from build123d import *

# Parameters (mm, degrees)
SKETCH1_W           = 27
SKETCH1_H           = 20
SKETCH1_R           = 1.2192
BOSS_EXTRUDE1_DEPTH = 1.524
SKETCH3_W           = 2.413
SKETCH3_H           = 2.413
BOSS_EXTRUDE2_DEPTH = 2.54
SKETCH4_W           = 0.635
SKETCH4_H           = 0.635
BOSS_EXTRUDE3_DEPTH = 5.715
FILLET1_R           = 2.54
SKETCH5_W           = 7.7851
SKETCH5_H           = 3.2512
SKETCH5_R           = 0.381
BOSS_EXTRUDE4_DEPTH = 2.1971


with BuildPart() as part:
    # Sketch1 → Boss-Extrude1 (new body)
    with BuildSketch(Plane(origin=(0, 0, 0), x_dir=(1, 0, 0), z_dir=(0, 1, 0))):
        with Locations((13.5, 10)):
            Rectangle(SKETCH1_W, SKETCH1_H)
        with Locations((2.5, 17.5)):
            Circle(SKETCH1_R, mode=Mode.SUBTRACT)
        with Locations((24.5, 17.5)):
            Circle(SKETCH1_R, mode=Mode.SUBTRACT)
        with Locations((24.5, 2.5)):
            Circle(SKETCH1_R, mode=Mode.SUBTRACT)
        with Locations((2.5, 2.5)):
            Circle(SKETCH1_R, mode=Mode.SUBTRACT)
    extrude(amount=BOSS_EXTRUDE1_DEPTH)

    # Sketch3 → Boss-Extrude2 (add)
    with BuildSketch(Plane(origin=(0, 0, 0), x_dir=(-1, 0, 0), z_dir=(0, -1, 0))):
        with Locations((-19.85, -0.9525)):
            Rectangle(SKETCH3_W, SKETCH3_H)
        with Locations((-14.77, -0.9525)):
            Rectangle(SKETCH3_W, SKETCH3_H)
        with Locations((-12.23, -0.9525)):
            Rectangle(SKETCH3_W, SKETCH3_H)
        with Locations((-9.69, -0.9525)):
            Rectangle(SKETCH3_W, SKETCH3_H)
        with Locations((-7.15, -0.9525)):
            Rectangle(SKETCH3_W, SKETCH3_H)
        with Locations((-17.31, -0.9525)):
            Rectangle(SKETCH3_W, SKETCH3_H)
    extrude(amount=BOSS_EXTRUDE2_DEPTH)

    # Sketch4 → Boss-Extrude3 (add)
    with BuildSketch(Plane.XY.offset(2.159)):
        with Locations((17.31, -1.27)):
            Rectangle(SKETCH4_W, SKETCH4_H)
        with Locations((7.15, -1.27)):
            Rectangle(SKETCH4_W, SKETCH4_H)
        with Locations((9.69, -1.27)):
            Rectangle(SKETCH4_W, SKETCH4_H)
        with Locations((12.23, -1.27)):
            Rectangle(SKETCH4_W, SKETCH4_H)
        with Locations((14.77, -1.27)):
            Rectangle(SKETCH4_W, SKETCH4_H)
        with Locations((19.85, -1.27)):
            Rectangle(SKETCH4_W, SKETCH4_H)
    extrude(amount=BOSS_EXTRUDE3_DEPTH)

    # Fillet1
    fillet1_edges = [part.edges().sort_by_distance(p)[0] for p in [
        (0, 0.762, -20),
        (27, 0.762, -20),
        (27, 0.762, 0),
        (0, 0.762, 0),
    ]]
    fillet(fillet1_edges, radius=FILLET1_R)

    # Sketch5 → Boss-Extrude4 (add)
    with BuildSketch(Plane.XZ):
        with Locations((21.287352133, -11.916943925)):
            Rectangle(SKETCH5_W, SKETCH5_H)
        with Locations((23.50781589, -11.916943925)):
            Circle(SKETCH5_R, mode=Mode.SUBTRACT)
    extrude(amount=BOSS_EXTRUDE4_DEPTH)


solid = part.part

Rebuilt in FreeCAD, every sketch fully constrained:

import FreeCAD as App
import Part
import Sketcher

V = App.Vector
Q = App.Units.Quantity


def edges_at(feature, points):
    """Names of the edges that pass closest to the given points."""
    edges = feature.Shape.Edges
    near = lambda p: min(range(len(edges)), key=lambda i: edges[i].distToShape(Part.Vertex(*p))[0])
    return sorted({f"Edge{near(p) + 1}" for p in points})

doc = App.newDocument("Part")
body = doc.addObject("PartDesign::Body", "Body")

# Sketch on XZ plane
sketch1 = body.newObject("Sketcher::SketchObject", "Sketch")
sketch1.AttachmentSupport = (doc.getObject("XZ_Plane"), [""])
sketch1.MapMode = "FlatFace"
sketch1.addGeometry([
    Part.LineSegment(V(0, -20, 0), V(0, 0, 0)),  # 0
    Part.LineSegment(V(0, 0, 0), V(27, 0, 0)),  # 1
    Part.LineSegment(V(27, 0, 0), V(27, -20, 0)),  # 2
    Part.LineSegment(V(27, -20, 0), V(0, -20, 0)),  # 3
    Part.Circle(V(2.5, -2.5, 0), V(0, 0, 1), 1.2192),  # 4
    Part.Circle(V(24.5, -2.5, 0), V(0, 0, 1), 1.2192),  # 5
    Part.Circle(V(2.5, -17.5, 0), V(0, 0, 1), 1.2192),  # 6
    Part.Circle(V(24.5, -17.5, 0), V(0, 0, 1), 1.2192),  # 7
], False)
sketch1.addConstraint([
    Sketcher.Constraint("Coincident", 0, 2, 1, 1),
    Sketcher.Constraint("Coincident", 1, 2, 2, 1),
    Sketcher.Constraint("Coincident", 2, 2, 3, 1),
    Sketcher.Constraint("Coincident", 3, 2, 0, 1),
    Sketcher.Constraint("Vertical", 0),
    Sketcher.Constraint("Horizontal", 1),
    Sketcher.Constraint("Vertical", 2),
    Sketcher.Constraint("Horizontal", 3),
    Sketcher.Constraint("Coincident", 0, 2, -1, 1),
    Sketcher.Constraint("Equal", 4, 5),
    Sketcher.Constraint("Equal", 5, 6),
    Sketcher.Constraint("Equal", 6, 7),
    Sketcher.Constraint("Horizontal", 4, 3, 5, 3),
    Sketcher.Constraint("Horizontal", 6, 3, 7, 3),
    Sketcher.Constraint("Vertical", 4, 3, 6, 3),
    Sketcher.Constraint("Vertical", 5, 3, 7, 3),
    Sketcher.Constraint("Diameter", 4, Q("0.096 in")),
    Sketcher.Constraint("DistanceX", 1, 1, 1, 2, 27.0),
    Sketcher.Constraint("DistanceY", 0, 1, 0, 2, 20.0),
    Sketcher.Constraint("DistanceX", -1, 1, 4, 3, 2.5),
    Sketcher.Constraint("DistanceY", 4, 3, -1, 1, 2.5),
    Sketcher.Constraint("DistanceX", -1, 1, 5, 3, 24.5),
    Sketcher.Constraint("DistanceY", 6, 3, -1, 1, 17.5),
])
pad1 = body.newObject("PartDesign::Pad", "Pad")
pad1.Profile = sketch1
pad1.Length = Q("0.06 in")
pad1.Reversed = True

# Sketch on XZ plane
sketch2 = body.newObject("Sketcher::SketchObject", "Sketch001")
sketch2.AttachmentSupport = (doc.getObject("XZ_Plane"), [""])
sketch2.MapMode = "FlatFace"
sketch2.addGeometry([
    Part.LineSegment(V(21.0565, -0.254, 0), V(21.0565, 2.159, 0)),  # 0
    Part.LineSegment(V(21.0565, 2.159, 0), V(18.6435, 2.159, 0)),  # 1
    Part.LineSegment(V(18.6435, 2.159, 0), V(18.6435, -0.254, 0)),  # 2
    Part.LineSegment(V(18.6435, -0.254, 0), V(21.0565, -0.254, 0)),  # 3
    Part.LineSegment(V(15.9765, -0.254, 0), V(15.9765, 2.159, 0)),  # 4
    Part.LineSegment(V(15.9765, 2.159, 0), V(13.5635, 2.159, 0)),  # 5
    Part.LineSegment(V(13.5635, 2.159, 0), V(13.5635, -0.254, 0)),  # 6
    Part.LineSegment(V(13.5635, -0.254, 0), V(15.9765, -0.254, 0)),  # 7
    Part.LineSegment(V(13.4365, -0.254, 0), V(13.4365, 2.159, 0)),  # 8
    Part.LineSegment(V(13.4365, 2.159, 0), V(11.0235, 2.159, 0)),  # 9
    Part.LineSegment(V(11.0235, 2.159, 0), V(11.0235, -0.254, 0)),  # 10
    Part.LineSegment(V(11.0235, -0.254, 0), V(13.4365, -0.254, 0)),  # 11
    Part.LineSegment(V(10.8965, -0.254, 0), V(10.8965, 2.159, 0)),  # 12
    Part.LineSegment(V(10.8965, 2.159, 0), V(8.4835, 2.159, 0)),  # 13
    Part.LineSegment(V(8.4835, 2.159, 0), V(8.4835, -0.254, 0)),  # 14
    Part.LineSegment(V(8.4835, -0.254, 0), V(10.8965, -0.254, 0)),  # 15
    Part.LineSegment(V(8.3565, -0.254, 0), V(8.3565, 2.159, 0)),  # 16
    Part.LineSegment(V(8.3565, 2.159, 0), V(5.9435, 2.159, 0)),  # 17
    Part.LineSegment(V(5.9435, 2.159, 0), V(5.9435, -0.254, 0)),  # 18
    Part.LineSegment(V(5.9435, -0.254, 0), V(8.3565, -0.254, 0)),  # 19
    Part.LineSegment(V(18.5165, -0.254, 0), V(18.5165, 2.159, 0)),  # 20
    Part.LineSegment(V(18.5165, 2.159, 0), V(16.1035, 2.159, 0)),  # 21
    Part.LineSegment(V(16.1035, 2.159, 0), V(16.1035, -0.254, 0)),  # 22
    Part.LineSegment(V(16.1035, -0.254, 0), V(18.5165, -0.254, 0)),  # 23
], False)
sketch2.addConstraint([
    Sketcher.Constraint("Coincident", 0, 2, 1, 1),
    Sketcher.Constraint("Coincident", 1, 2, 2, 1),
    Sketcher.Constraint("Coincident", 2, 2, 3, 1),
    Sketcher.Constraint("Coincident", 3, 2, 0, 1),
    Sketcher.Constraint("Coincident", 4, 2, 5, 1),
    Sketcher.Constraint("Coincident", 5, 2, 6, 1),
    Sketcher.Constraint("Coincident", 6, 2, 7, 1),
    Sketcher.Constraint("Coincident", 7, 2, 4, 1),
    Sketcher.Constraint("Coincident", 8, 2, 9, 1),
    Sketcher.Constraint("Coincident", 9, 2, 10, 1),
    Sketcher.Constraint("Coincident", 10, 2, 11, 1),
    Sketcher.Constraint("Coincident", 11, 2, 8, 1),
    Sketcher.Constraint("Coincident", 12, 2, 13, 1),
    Sketcher.Constraint("Coincident", 13, 2, 14, 1),
    Sketcher.Constraint("Coincident", 14, 2, 15, 1),
    Sketcher.Constraint("Coincident", 15, 2, 12, 1),
    Sketcher.Constraint("Coincident", 16, 2, 17, 1),
    Sketcher.Constraint("Coincident", 17, 2, 18, 1),
    Sketcher.Constraint("Coincident", 18, 2, 19, 1),
    Sketcher.Constraint("Coincident", 19, 2, 16, 1),
    Sketcher.Constraint("Coincident", 20, 2, 21, 1),
    Sketcher.Constraint("Coincident", 21, 2, 22, 1),
    Sketcher.Constraint("Coincident", 22, 2, 23, 1),
    Sketcher.Constraint("Coincident", 23, 2, 20, 1),
    Sketcher.Constraint("Vertical", 0),
    Sketcher.Constraint("Horizontal", 1),
    Sketcher.Constraint("Vertical", 2),
    Sketcher.Constraint("Horizontal", 3),
    Sketcher.Constraint("Vertical", 4),
    Sketcher.Constraint("Horizontal", 5),
    Sketcher.Constraint("Vertical", 6),
    Sketcher.Constraint("Horizontal", 7),
    Sketcher.Constraint("Vertical", 8),
    Sketcher.Constraint("Horizontal", 9),
    Sketcher.Constraint("Vertical", 10),
    Sketcher.Constraint("Horizontal", 11),
    Sketcher.Constraint("Vertical", 12),
    Sketcher.Constraint("Horizontal", 13),
    Sketcher.Constraint("Vertical", 14),
    Sketcher.Constraint("Horizontal", 15),
    Sketcher.Constraint("Vertical", 16),
    Sketcher.Constraint("Horizontal", 17),
    Sketcher.Constraint("Vertical", 18),
    Sketcher.Constraint("Horizontal", 19),
    Sketcher.Constraint("Vertical", 20),
    Sketcher.Constraint("Horizontal", 21),
    Sketcher.Constraint("Vertical", 22),
    Sketcher.Constraint("Horizontal", 23),
    Sketcher.Constraint("Horizontal", 1, 2, 4, 2),
    Sketcher.Constraint("Horizontal", 3, 2, 6, 2),
    Sketcher.Constraint("Horizontal", 5, 2, 8, 2),
    Sketcher.Constraint("Horizontal", 7, 2, 10, 2),
    Sketcher.Constraint("Horizontal", 9, 2, 12, 2),
    Sketcher.Constraint("Horizontal", 11, 2, 14, 2),
    Sketcher.Constraint("Horizontal", 13, 2, 16, 2),
    Sketcher.Constraint("Horizontal", 15, 2, 18, 2),
    Sketcher.Constraint("Horizontal", 17, 2, 20, 2),
    Sketcher.Constraint("Horizontal", 19, 2, 22, 2),
    Sketcher.Constraint("Equal", 3, 5),
    Sketcher.Constraint("Equal", 7, 9),
    Sketcher.Constraint("Equal", 11, 13),
    Sketcher.Constraint("Equal", 15, 17),
    Sketcher.Constraint("Equal", 19, 21),
    Sketcher.Constraint("Equal", 23, 0),
    Sketcher.Constraint("DistanceX", 4, 2, 0, 2, Q("0.2 in")),
    Sketcher.Constraint("DistanceX", 8, 2, 4, 2, Q("0.1 in")),
    Sketcher.Constraint("DistanceX", 12, 2, 8, 2, Q("0.1 in")),
    Sketcher.Constraint("DistanceX", 16, 2, 12, 2, Q("0.1 in")),
    Sketcher.Constraint("DistanceX", 20, 2, 0, 2, Q("0.1 in")),
    Sketcher.Constraint("DistanceX", 1, 2, 1, 1, Q("0.095 in")),
    Sketcher.Constraint("DistanceY", 2, 2, -1, 1, Q("0.01 in")),
    Sketcher.Constraint("DistanceX", -1, 1, 0, 2, 21.0565),
])
pad2 = body.newObject("PartDesign::Pad", "Pad001")
pad2.Profile = sketch2
pad2.Length = Q("0.1 in")

# Sketch on XY plane
sketch3 = body.newObject("Sketcher::SketchObject", "Sketch002")
sketch3.AttachmentSupport = (doc.getObject("XY_Plane"), [""])
sketch3.MapMode = "FlatFace"
sketch3.AttachmentOffset = App.Placement(V(0, 0, 0.085 * 25.4), App.Rotation())
sketch3.addGeometry([
    Part.LineSegment(V(16.9925, -0.9525, 0), V(16.9925, -1.5875, 0)),  # 0
    Part.LineSegment(V(16.9925, -1.5875, 0), V(17.6275, -1.5875, 0)),  # 1
    Part.LineSegment(V(17.6275, -1.5875, 0), V(17.6275, -0.9525, 0)),  # 2
    Part.LineSegment(V(17.6275, -0.9525, 0), V(16.9925, -0.9525, 0)),  # 3
    Part.LineSegment(V(6.8325, -0.9525, 0), V(6.8325, -1.5875, 0)),  # 4
    Part.LineSegment(V(6.8325, -1.5875, 0), V(7.4675, -1.5875, 0)),  # 5
    Part.LineSegment(V(7.4675, -1.5875, 0), V(7.4675, -0.9525, 0)),  # 6
    Part.LineSegment(V(7.4675, -0.9525, 0), V(6.8325, -0.9525, 0)),  # 7
    Part.LineSegment(V(9.3725, -0.9525, 0), V(9.3725, -1.5875, 0)),  # 8
    Part.LineSegment(V(9.3725, -1.5875, 0), V(10.0075, -1.5875, 0)),  # 9
    Part.LineSegment(V(10.0075, -1.5875, 0), V(10.0075, -0.9525, 0)),  # 10
    Part.LineSegment(V(10.0075, -0.9525, 0), V(9.3725, -0.9525, 0)),  # 11
    Part.LineSegment(V(11.9125, -0.9525, 0), V(11.9125, -1.5875, 0)),  # 12
    Part.LineSegment(V(11.9125, -1.5875, 0), V(12.5475, -1.5875, 0)),  # 13
    Part.LineSegment(V(12.5475, -1.5875, 0), V(12.5475, -0.9525, 0)),  # 14
    Part.LineSegment(V(12.5475, -0.9525, 0), V(11.9125, -0.9525, 0)),  # 15
    Part.LineSegment(V(14.4525, -0.9525, 0), V(14.4525, -1.5875, 0)),  # 16
    Part.LineSegment(V(14.4525, -1.5875, 0), V(15.0875, -1.5875, 0)),  # 17
    Part.LineSegment(V(15.0875, -1.5875, 0), V(15.0875, -0.9525, 0)),  # 18
    Part.LineSegment(V(15.0875, -0.9525, 0), V(14.4525, -0.9525, 0)),  # 19
    Part.LineSegment(V(19.5325, -0.9525, 0), V(19.5325, -1.5875, 0)),  # 20
    Part.LineSegment(V(19.5325, -1.5875, 0), V(20.1675, -1.5875, 0)),  # 21
    Part.LineSegment(V(20.1675, -1.5875, 0), V(20.1675, -0.9525, 0)),  # 22
    Part.LineSegment(V(20.1675, -0.9525, 0), V(19.5325, -0.9525, 0)),  # 23
], False)
sketch3.addConstraint([
    Sketcher.Constraint("Coincident", 0, 2, 1, 1),
    Sketcher.Constraint("Coincident", 1, 2, 2, 1),
    Sketcher.Constraint("Coincident", 2, 2, 3, 1),
    Sketcher.Constraint("Coincident", 3, 2, 0, 1),
    Sketcher.Constraint("Coincident", 4, 2, 5, 1),
    Sketcher.Constraint("Coincident", 5, 2, 6, 1),
    Sketcher.Constraint("Coincident", 6, 2, 7, 1),
    Sketcher.Constraint("Coincident", 7, 2, 4, 1),
    Sketcher.Constraint("Coincident", 8, 2, 9, 1),
    Sketcher.Constraint("Coincident", 9, 2, 10, 1),
    Sketcher.Constraint("Coincident", 10, 2, 11, 1),
    Sketcher.Constraint("Coincident", 11, 2, 8, 1),
    Sketcher.Constraint("Coincident", 12, 2, 13, 1),
    Sketcher.Constraint("Coincident", 13, 2, 14, 1),
    Sketcher.Constraint("Coincident", 14, 2, 15, 1),
    Sketcher.Constraint("Coincident", 15, 2, 12, 1),
    Sketcher.Constraint("Coincident", 16, 2, 17, 1),
    Sketcher.Constraint("Coincident", 17, 2, 18, 1),
    Sketcher.Constraint("Coincident", 18, 2, 19, 1),
    Sketcher.Constraint("Coincident", 19, 2, 16, 1),
    Sketcher.Constraint("Coincident", 20, 2, 21, 1),
    Sketcher.Constraint("Coincident", 21, 2, 22, 1),
    Sketcher.Constraint("Coincident", 22, 2, 23, 1),
    Sketcher.Constraint("Coincident", 23, 2, 20, 1),
    Sketcher.Constraint("Vertical", 0),
    Sketcher.Constraint("Horizontal", 1),
    Sketcher.Constraint("Vertical", 2),
    Sketcher.Constraint("Horizontal", 3),
    Sketcher.Constraint("Vertical", 4),
    Sketcher.Constraint("Horizontal", 5),
    Sketcher.Constraint("Vertical", 6),
    Sketcher.Constraint("Horizontal", 7),
    Sketcher.Constraint("Vertical", 8),
    Sketcher.Constraint("Horizontal", 9),
    Sketcher.Constraint("Vertical", 10),
    Sketcher.Constraint("Horizontal", 11),
    Sketcher.Constraint("Vertical", 12),
    Sketcher.Constraint("Horizontal", 13),
    Sketcher.Constraint("Vertical", 14),
    Sketcher.Constraint("Horizontal", 15),
    Sketcher.Constraint("Vertical", 16),
    Sketcher.Constraint("Horizontal", 17),
    Sketcher.Constraint("Vertical", 18),
    Sketcher.Constraint("Horizontal", 19),
    Sketcher.Constraint("Vertical", 20),
    Sketcher.Constraint("Horizontal", 21),
    Sketcher.Constraint("Vertical", 22),
    Sketcher.Constraint("Horizontal", 23),
    Sketcher.Constraint("Horizontal", 1, 2, 4, 2),
    Sketcher.Constraint("Horizontal", 3, 2, 6, 2),
    Sketcher.Constraint("Horizontal", 5, 2, 8, 2),
    Sketcher.Constraint("Horizontal", 7, 2, 10, 2),
    Sketcher.Constraint("Horizontal", 9, 2, 12, 2),
    Sketcher.Constraint("Horizontal", 11, 2, 14, 2),
    Sketcher.Constraint("Horizontal", 13, 2, 16, 2),
    Sketcher.Constraint("Horizontal", 15, 2, 18, 2),
    Sketcher.Constraint("Horizontal", 17, 2, 20, 2),
    Sketcher.Constraint("Horizontal", 19, 2, 22, 2),
    Sketcher.Constraint("Equal", 3, 5),
    Sketcher.Constraint("Equal", 7, 9),
    Sketcher.Constraint("Equal", 11, 13),
    Sketcher.Constraint("Equal", 15, 17),
    Sketcher.Constraint("Equal", 19, 21),
    Sketcher.Constraint("Equal", 23, 0),
    Sketcher.Constraint("DistanceX", 4, 2, 0, 2, Q("0.4 in")),
    Sketcher.Constraint("DistanceX", 4, 2, 8, 2, Q("0.1 in")),
    Sketcher.Constraint("DistanceX", 8, 2, 12, 2, Q("0.1 in")),
    Sketcher.Constraint("DistanceX", 16, 2, 0, 2, Q("0.1 in")),
    Sketcher.Constraint("DistanceX", 0, 2, 20, 2, Q("0.1 in")),
    Sketcher.Constraint("DistanceX", 1, 1, 1, 2, Q("0.025 in")),
    Sketcher.Constraint("DistanceY", 0, 2, -1, 1, Q("0.0625 in")),
    Sketcher.Constraint("DistanceX", -1, 1, 0, 2, 16.9925),
])
pad3 = body.newObject("PartDesign::Pad", "Pad002")
pad3.Profile = sketch3
pad3.Length = Q("0.225 in")
doc.recompute()

fillet = body.newObject("PartDesign::Fillet", "Fillet")
fillet.Base = (pad3, edges_at(pad3, [
    (0, 0.762, -20),
    (27, 0.762, -20),
    (27, 0.762, 0),
    (0, 0.762, 0),
]))
fillet.Radius = Q("0.1 in")

# Sketch on XZ plane
sketch4 = body.newObject("Sketcher::SketchObject", "Sketch003")
sketch4.AttachmentSupport = (doc.getObject("XZ_Plane"), [""])
sketch4.MapMode = "FlatFace"
sketch4.addGeometry([
    Part.LineSegment(V(17.394802, -10.291344, 0), V(17.394802, -13.542544, 0)),  # 0
    Part.LineSegment(V(17.394802, -13.542544, 0), V(25.179902, -13.542544, 0)),  # 1
    Part.LineSegment(V(25.179902, -13.542544, 0), V(25.179902, -10.291344, 0)),  # 2
    Part.LineSegment(V(25.179902, -10.291344, 0), V(17.394802, -10.291344, 0)),  # 3
    Part.Circle(V(23.507816, -11.916944, 0), V(0, 0, 1), 0.381),  # 4
], False)
sketch4.addConstraint([
    Sketcher.Constraint("Coincident", 0, 2, 1, 1),
    Sketcher.Constraint("Coincident", 1, 2, 2, 1),
    Sketcher.Constraint("Coincident", 2, 2, 3, 1),
    Sketcher.Constraint("Coincident", 3, 2, 0, 1),
    Sketcher.Constraint("Vertical", 0),
    Sketcher.Constraint("Horizontal", 1),
    Sketcher.Constraint("Vertical", 2),
    Sketcher.Constraint("Horizontal", 3),
    Sketcher.Constraint("Diameter", 4, Q("0.03 in")),
    Sketcher.Constraint("DistanceY", 0, 2, 0, 1, Q("0.128 in")),
    Sketcher.Constraint("DistanceX", 1, 1, 1, 2, Q("0.3065 in")),
    Sketcher.Constraint("DistanceY", 0, 2, 4, 3, Q("0.064 in")),
    Sketcher.Constraint("DistanceX", -1, 1, 4, 3, 23.507816),
    Sketcher.Constraint("DistanceY", 4, 3, -1, 1, 11.916944),
    Sketcher.Constraint("DistanceX", -1, 1, 0, 2, 17.394802),
])
pad4 = body.newObject("PartDesign::Pad", "Pad003")
pad4.Profile = sketch4
pad4.Length = Q("0.0865 in")

doc.recompute()
